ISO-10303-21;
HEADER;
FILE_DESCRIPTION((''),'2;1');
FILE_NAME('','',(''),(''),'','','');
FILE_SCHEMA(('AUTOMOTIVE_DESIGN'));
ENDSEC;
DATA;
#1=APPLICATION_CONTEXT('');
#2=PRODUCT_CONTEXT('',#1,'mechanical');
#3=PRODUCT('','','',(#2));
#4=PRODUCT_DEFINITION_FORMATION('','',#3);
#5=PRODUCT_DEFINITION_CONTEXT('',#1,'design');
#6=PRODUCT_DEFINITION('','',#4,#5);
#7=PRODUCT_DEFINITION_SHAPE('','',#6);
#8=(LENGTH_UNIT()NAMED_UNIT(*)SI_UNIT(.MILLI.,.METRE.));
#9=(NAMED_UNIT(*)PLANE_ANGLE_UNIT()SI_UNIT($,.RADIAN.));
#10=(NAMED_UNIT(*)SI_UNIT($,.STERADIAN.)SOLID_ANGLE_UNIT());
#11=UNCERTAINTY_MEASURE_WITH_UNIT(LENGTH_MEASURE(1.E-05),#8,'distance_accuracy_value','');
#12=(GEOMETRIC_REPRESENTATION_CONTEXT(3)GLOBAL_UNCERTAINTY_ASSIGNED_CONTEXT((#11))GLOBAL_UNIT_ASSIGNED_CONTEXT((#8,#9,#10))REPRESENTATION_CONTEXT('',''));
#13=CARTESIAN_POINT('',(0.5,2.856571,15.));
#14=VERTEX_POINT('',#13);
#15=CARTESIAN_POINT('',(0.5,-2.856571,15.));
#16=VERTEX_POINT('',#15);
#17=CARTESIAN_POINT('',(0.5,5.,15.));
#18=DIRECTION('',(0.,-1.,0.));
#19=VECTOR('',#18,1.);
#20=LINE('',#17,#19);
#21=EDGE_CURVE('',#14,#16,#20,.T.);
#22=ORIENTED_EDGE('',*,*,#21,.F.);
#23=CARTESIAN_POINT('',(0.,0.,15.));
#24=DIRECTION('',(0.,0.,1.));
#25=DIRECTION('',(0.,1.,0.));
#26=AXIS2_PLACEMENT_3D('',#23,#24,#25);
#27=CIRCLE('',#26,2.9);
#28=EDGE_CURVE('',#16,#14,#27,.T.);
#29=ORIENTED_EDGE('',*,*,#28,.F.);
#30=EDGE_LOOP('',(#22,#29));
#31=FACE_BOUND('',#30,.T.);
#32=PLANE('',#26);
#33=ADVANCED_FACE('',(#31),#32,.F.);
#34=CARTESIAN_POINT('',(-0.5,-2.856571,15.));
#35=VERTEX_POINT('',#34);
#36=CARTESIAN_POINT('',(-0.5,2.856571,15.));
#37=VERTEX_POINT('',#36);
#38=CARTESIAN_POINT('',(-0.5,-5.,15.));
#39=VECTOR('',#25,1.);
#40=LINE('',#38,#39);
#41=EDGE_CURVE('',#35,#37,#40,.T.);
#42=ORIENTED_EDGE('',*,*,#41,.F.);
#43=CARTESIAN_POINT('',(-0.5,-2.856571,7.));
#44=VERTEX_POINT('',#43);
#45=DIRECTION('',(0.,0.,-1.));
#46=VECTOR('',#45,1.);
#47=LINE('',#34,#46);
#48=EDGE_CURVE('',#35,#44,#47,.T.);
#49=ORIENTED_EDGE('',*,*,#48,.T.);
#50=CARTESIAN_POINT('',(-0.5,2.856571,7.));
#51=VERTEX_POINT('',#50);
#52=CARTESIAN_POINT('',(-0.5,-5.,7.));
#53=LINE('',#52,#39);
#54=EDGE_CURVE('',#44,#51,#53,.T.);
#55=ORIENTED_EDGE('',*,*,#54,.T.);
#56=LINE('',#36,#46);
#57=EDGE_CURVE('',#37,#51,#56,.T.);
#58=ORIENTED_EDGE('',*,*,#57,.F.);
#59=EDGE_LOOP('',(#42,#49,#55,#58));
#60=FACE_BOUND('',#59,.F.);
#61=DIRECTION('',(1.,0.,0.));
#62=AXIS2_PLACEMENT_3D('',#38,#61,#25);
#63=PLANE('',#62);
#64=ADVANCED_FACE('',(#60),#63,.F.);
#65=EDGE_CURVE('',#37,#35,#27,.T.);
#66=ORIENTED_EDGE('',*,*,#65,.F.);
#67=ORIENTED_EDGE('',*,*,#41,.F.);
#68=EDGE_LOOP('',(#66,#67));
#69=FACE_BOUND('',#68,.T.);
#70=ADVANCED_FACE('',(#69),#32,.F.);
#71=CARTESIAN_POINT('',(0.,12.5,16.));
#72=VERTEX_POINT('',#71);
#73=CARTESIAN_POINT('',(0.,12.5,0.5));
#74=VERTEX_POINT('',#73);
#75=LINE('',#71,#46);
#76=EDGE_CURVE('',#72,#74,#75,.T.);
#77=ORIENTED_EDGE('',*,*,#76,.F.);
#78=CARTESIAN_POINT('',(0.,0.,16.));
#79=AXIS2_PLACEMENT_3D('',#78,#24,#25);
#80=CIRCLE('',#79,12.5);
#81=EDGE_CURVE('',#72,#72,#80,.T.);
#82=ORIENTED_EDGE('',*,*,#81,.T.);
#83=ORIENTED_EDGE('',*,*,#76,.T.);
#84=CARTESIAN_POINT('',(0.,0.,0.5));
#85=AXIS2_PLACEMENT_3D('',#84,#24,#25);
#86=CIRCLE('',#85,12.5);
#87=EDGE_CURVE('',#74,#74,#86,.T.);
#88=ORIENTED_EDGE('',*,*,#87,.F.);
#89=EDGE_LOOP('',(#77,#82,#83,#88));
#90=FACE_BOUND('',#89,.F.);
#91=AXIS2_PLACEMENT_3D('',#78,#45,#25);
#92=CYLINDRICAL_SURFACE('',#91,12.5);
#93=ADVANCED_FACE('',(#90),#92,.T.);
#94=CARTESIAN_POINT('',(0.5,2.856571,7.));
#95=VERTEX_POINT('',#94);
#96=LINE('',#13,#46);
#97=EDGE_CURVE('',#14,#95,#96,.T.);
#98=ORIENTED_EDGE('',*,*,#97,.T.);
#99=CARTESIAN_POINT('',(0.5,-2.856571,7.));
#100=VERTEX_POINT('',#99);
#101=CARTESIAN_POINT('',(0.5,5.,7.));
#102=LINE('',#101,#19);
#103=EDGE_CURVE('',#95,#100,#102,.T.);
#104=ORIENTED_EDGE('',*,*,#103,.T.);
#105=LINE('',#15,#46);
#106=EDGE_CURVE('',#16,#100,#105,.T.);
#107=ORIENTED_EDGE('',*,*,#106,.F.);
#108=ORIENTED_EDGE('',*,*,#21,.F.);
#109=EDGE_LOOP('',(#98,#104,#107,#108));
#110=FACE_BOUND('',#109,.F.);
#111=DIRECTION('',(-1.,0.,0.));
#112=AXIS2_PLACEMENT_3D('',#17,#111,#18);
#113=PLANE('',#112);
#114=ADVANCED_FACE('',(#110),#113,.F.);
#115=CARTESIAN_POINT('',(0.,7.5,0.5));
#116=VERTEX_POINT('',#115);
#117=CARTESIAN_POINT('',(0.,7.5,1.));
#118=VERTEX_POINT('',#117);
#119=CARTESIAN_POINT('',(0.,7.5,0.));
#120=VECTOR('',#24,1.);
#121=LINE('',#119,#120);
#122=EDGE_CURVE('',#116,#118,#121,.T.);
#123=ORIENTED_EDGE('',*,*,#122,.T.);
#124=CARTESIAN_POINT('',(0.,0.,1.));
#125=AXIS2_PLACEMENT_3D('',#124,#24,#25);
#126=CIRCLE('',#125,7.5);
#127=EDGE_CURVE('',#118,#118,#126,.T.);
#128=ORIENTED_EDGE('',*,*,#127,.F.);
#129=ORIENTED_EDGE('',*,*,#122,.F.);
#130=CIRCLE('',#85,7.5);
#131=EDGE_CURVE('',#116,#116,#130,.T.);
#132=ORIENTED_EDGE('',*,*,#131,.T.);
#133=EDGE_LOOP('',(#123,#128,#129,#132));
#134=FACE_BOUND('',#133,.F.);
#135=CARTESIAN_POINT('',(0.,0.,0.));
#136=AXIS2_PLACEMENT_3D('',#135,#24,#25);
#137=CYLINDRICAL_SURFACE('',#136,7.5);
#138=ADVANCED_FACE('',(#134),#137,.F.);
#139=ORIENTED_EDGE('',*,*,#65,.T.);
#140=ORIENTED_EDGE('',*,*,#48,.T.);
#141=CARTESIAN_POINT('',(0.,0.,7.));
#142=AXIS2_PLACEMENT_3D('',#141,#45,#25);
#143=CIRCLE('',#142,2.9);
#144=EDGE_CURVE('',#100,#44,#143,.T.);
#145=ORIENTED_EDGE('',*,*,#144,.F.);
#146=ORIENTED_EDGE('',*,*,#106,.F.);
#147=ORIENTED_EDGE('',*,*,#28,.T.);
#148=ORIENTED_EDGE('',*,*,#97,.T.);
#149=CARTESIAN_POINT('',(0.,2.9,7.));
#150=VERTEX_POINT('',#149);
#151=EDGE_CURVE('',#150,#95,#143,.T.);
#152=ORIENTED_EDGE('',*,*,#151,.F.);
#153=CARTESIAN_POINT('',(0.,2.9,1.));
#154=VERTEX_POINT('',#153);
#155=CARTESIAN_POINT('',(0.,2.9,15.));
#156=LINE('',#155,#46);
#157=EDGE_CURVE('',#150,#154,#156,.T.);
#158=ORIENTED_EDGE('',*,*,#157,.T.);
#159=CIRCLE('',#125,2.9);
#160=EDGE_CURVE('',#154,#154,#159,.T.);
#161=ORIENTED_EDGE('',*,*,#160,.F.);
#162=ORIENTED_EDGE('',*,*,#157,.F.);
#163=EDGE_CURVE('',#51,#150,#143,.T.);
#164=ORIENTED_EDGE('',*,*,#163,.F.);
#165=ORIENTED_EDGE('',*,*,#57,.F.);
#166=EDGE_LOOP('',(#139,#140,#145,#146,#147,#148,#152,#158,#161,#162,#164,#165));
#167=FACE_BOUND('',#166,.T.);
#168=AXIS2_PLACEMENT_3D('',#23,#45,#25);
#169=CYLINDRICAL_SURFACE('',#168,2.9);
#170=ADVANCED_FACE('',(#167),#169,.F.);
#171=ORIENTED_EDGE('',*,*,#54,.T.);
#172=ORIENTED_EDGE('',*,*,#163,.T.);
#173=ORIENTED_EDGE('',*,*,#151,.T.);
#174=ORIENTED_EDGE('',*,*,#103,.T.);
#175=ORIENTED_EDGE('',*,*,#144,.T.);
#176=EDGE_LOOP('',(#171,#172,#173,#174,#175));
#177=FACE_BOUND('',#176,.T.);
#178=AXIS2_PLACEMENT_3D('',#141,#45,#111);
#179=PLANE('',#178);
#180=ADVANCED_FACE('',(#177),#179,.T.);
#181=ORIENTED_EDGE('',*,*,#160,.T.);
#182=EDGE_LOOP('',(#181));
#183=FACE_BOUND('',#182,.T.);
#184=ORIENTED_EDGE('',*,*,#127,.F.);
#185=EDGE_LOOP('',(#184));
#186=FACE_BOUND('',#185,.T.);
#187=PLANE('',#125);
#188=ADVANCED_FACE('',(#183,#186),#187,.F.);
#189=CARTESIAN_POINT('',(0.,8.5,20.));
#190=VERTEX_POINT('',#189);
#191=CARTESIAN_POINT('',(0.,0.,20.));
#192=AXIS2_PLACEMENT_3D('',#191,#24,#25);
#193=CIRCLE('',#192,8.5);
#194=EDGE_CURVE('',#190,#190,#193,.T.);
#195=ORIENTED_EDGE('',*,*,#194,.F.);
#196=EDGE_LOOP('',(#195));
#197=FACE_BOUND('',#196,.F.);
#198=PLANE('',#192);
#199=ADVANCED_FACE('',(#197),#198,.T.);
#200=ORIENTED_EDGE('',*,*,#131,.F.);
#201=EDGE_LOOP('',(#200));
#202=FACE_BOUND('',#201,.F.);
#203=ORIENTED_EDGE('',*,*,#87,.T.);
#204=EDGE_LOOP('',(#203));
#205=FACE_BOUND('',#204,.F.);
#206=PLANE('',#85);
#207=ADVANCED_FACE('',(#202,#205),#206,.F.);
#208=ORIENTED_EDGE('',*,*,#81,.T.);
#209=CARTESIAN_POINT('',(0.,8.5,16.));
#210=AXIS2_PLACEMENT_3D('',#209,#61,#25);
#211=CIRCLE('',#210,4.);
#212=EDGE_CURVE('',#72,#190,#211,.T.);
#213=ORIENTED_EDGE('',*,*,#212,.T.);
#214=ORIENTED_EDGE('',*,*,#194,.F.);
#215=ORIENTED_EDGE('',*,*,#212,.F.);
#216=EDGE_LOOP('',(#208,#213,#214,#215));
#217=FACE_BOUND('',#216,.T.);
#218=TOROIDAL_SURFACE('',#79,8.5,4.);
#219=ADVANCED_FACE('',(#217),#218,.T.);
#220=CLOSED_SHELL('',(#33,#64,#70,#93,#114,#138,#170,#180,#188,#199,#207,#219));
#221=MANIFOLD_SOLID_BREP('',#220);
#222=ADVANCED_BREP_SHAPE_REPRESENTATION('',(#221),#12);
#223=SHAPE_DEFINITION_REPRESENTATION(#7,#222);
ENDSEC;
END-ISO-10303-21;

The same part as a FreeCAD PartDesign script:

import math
import FreeCAD as App
import Part
import Sketcher

V = App.Vector


def add_polygon(sketch, points):
    """Adds a closed chain of lines whose ends are joined by coincident constraints."""
    first, n = sketch.GeometryCount, len(points)
    for a, b in zip(points, points[1:] + points[:1]):
        sketch.addGeometry(Part.LineSegment(App.Vector(*a, 0), App.Vector(*b, 0)), False)
    for i in range(n):
        sketch.addConstraint(Sketcher.Constraint("Coincident", first + i, 2, first + (i + 1) % n, 1))

doc = App.newDocument("Part")
params = doc.addObject("Spreadsheet::Sheet", "Params")
for row, (alias, value) in enumerate([
    ("sketch1_radius", "4 mm"),
    ("sketch1_width", "5 mm"),
    ("sketch1_height", "14 mm"),
    ("sketch1_height2", "0.5 mm"),
    ("sketch1_width2", "8.5 mm"),
    ("revolution_angle", "360 deg"),
    ("sketch2_width", "1 mm"),
    ("sketch2_height", "10 mm"),
    ("pad1_length", "8 mm"),
], start=1):
    params.set(f"A{row}", alias)
    params.set(f"B{row}", "=" + value)
    params.setAlias(f"B{row}", alias)

body = doc.addObject("PartDesign::Body", "Body")

sketch1 = body.newObject("Sketcher::SketchObject", "Sketch")
sketch1.AttachmentSupport = (doc.getObject("YZ_Plane"), [""])
sketch1.MapMode = "FlatFace"
sketch1.addGeometry([
    Part.LineSegment(V(7.5, 0.5, 0), V(12.5, 0.5, 0)),
    Part.LineSegment(V(12.5, 0.5, 0), V(12.5, 16, 0)),
    Part.ArcOfCircle(Part.Circle(V(8.5, 16, 0), V(0, 0, 1), 4), math.radians(0), math.radians(90)),
    Part.LineSegment(V(8.5, 20, 0), V(0, 20, 0)),
    Part.LineSegment(V(0, 20, 0), V(0, 15, 0)),
    Part.LineSegment(V(0, 15, 0), V(2.9, 15, 0)),
    Part.LineSegment(V(2.9, 15, 0), V(2.9, 1, 0)),
    Part.LineSegment(V(2.9, 1, 0), V(7.5, 1, 0)),
    Part.LineSegment(V(7.5, 1, 0), V(7.5, 0.5, 0)),
], False)
sketch1.addConstraint([
    Sketcher.Constraint("Coincident", 0, 2, 1, 1),
    Sketcher.Constraint("Tangent", 1, 2, 2, 1),
    Sketcher.Constraint("Tangent", 2, 2, 3, 1),
    Sketcher.Constraint("Coincident", 3, 2, 4, 1),
    Sketcher.Constraint("Coincident", 4, 2, 5, 1),
    Sketcher.Constraint("Coincident", 5, 2, 6, 1),
    Sketcher.Constraint("Coincident", 6, 2, 7, 1),
    Sketcher.Constraint("Coincident", 7, 2, 8, 1),
    Sketcher.Constraint("Coincident", 8, 2, 0, 1),
    Sketcher.Constraint("Horizontal", 0),
    Sketcher.Constraint("Vertical", 1),
    Sketcher.Constraint("Horizontal", 3),
    Sketcher.Constraint("Vertical", 4),
    Sketcher.Constraint("Horizontal", 5),
    Sketcher.Constraint("Vertical", 6),
    Sketcher.Constraint("Horizontal", 7),
    Sketcher.Constraint("Vertical", 8),
    Sketcher.Constraint("PointOnObject", 3, 2, -2),
    Sketcher.Constraint("Equal", 0, 4),
    Sketcher.Constraint("Radius", 2, 4.0),
    Sketcher.Constraint("DistanceX", 0, 1, 0, 2, 5.0),
    Sketcher.Constraint("DistanceY", 6, 2, 6, 1, 14.0),
    Sketcher.Constraint("DistanceY", 8, 2, 8, 1, 0.5),
    Sketcher.Constraint("DistanceY", -1, 1, 2, 2, 20.0),
    Sketcher.Constraint("DistanceX", 3, 2, 3, 1, 8.5),
    Sketcher.Constraint("DistanceX", 5, 1, 5, 2, 2.9),
])
sketch1.setExpression("Constraints[19]", "Params.sketch1_radius")
sketch1.setExpression("Constraints[20]", "Params.sketch1_width")
sketch1.setExpression("Constraints[21]", "Params.sketch1_height")
sketch1.setExpression("Constraints[22]", "Params.sketch1_height2")
sketch1.setExpression("Constraints[24]", "Params.sketch1_width2")
revolution = body.newObject("PartDesign::Revolution", "Revolution")
revolution.Profile = sketch1
revolution.ReferenceAxis = (sketch1, ["V_Axis"])
revolution.setExpression("Angle", "Params.revolution_angle")

sketch2 = body.newObject("Sketcher::SketchObject", "Sketch001")
sketch2.AttachmentSupport = (doc.getObject("XY_Plane"), [""])
sketch2.MapMode = "FlatFace"
sketch2.AttachmentOffset = App.Placement(V(0, 0, 15), App.Rotation())
add_polygon(sketch2, [(-0.5, -5), (-0.5, 5), (0.5, 5), (0.5, -5)])
sketch2.addConstraint([
    Sketcher.Constraint("Vertical", 0),
    Sketcher.Constraint("Horizontal", 1),
    Sketcher.Constraint("Vertical", 2),
    Sketcher.Constraint("Horizontal", 3),
    Sketcher.Constraint("Symmetric", 0, 2, 2, 2, -1, 1),
    Sketcher.Constraint("DistanceX", 1, 1, 1, 2, 1.0),
    Sketcher.Constraint("DistanceY", 0, 1, 0, 2, 10.0),
])
sketch2.setExpression("Constraints[9]", "Params.sketch2_width")
sketch2.setExpression("Constraints[10]", "Params.sketch2_height")
pad1 = body.newObject("PartDesign::Pad", "Pad")
pad1.Profile = sketch2
pad1.setExpression("Length", "Params.pad1_length")
pad1.Reversed = True

doc.recompute()
